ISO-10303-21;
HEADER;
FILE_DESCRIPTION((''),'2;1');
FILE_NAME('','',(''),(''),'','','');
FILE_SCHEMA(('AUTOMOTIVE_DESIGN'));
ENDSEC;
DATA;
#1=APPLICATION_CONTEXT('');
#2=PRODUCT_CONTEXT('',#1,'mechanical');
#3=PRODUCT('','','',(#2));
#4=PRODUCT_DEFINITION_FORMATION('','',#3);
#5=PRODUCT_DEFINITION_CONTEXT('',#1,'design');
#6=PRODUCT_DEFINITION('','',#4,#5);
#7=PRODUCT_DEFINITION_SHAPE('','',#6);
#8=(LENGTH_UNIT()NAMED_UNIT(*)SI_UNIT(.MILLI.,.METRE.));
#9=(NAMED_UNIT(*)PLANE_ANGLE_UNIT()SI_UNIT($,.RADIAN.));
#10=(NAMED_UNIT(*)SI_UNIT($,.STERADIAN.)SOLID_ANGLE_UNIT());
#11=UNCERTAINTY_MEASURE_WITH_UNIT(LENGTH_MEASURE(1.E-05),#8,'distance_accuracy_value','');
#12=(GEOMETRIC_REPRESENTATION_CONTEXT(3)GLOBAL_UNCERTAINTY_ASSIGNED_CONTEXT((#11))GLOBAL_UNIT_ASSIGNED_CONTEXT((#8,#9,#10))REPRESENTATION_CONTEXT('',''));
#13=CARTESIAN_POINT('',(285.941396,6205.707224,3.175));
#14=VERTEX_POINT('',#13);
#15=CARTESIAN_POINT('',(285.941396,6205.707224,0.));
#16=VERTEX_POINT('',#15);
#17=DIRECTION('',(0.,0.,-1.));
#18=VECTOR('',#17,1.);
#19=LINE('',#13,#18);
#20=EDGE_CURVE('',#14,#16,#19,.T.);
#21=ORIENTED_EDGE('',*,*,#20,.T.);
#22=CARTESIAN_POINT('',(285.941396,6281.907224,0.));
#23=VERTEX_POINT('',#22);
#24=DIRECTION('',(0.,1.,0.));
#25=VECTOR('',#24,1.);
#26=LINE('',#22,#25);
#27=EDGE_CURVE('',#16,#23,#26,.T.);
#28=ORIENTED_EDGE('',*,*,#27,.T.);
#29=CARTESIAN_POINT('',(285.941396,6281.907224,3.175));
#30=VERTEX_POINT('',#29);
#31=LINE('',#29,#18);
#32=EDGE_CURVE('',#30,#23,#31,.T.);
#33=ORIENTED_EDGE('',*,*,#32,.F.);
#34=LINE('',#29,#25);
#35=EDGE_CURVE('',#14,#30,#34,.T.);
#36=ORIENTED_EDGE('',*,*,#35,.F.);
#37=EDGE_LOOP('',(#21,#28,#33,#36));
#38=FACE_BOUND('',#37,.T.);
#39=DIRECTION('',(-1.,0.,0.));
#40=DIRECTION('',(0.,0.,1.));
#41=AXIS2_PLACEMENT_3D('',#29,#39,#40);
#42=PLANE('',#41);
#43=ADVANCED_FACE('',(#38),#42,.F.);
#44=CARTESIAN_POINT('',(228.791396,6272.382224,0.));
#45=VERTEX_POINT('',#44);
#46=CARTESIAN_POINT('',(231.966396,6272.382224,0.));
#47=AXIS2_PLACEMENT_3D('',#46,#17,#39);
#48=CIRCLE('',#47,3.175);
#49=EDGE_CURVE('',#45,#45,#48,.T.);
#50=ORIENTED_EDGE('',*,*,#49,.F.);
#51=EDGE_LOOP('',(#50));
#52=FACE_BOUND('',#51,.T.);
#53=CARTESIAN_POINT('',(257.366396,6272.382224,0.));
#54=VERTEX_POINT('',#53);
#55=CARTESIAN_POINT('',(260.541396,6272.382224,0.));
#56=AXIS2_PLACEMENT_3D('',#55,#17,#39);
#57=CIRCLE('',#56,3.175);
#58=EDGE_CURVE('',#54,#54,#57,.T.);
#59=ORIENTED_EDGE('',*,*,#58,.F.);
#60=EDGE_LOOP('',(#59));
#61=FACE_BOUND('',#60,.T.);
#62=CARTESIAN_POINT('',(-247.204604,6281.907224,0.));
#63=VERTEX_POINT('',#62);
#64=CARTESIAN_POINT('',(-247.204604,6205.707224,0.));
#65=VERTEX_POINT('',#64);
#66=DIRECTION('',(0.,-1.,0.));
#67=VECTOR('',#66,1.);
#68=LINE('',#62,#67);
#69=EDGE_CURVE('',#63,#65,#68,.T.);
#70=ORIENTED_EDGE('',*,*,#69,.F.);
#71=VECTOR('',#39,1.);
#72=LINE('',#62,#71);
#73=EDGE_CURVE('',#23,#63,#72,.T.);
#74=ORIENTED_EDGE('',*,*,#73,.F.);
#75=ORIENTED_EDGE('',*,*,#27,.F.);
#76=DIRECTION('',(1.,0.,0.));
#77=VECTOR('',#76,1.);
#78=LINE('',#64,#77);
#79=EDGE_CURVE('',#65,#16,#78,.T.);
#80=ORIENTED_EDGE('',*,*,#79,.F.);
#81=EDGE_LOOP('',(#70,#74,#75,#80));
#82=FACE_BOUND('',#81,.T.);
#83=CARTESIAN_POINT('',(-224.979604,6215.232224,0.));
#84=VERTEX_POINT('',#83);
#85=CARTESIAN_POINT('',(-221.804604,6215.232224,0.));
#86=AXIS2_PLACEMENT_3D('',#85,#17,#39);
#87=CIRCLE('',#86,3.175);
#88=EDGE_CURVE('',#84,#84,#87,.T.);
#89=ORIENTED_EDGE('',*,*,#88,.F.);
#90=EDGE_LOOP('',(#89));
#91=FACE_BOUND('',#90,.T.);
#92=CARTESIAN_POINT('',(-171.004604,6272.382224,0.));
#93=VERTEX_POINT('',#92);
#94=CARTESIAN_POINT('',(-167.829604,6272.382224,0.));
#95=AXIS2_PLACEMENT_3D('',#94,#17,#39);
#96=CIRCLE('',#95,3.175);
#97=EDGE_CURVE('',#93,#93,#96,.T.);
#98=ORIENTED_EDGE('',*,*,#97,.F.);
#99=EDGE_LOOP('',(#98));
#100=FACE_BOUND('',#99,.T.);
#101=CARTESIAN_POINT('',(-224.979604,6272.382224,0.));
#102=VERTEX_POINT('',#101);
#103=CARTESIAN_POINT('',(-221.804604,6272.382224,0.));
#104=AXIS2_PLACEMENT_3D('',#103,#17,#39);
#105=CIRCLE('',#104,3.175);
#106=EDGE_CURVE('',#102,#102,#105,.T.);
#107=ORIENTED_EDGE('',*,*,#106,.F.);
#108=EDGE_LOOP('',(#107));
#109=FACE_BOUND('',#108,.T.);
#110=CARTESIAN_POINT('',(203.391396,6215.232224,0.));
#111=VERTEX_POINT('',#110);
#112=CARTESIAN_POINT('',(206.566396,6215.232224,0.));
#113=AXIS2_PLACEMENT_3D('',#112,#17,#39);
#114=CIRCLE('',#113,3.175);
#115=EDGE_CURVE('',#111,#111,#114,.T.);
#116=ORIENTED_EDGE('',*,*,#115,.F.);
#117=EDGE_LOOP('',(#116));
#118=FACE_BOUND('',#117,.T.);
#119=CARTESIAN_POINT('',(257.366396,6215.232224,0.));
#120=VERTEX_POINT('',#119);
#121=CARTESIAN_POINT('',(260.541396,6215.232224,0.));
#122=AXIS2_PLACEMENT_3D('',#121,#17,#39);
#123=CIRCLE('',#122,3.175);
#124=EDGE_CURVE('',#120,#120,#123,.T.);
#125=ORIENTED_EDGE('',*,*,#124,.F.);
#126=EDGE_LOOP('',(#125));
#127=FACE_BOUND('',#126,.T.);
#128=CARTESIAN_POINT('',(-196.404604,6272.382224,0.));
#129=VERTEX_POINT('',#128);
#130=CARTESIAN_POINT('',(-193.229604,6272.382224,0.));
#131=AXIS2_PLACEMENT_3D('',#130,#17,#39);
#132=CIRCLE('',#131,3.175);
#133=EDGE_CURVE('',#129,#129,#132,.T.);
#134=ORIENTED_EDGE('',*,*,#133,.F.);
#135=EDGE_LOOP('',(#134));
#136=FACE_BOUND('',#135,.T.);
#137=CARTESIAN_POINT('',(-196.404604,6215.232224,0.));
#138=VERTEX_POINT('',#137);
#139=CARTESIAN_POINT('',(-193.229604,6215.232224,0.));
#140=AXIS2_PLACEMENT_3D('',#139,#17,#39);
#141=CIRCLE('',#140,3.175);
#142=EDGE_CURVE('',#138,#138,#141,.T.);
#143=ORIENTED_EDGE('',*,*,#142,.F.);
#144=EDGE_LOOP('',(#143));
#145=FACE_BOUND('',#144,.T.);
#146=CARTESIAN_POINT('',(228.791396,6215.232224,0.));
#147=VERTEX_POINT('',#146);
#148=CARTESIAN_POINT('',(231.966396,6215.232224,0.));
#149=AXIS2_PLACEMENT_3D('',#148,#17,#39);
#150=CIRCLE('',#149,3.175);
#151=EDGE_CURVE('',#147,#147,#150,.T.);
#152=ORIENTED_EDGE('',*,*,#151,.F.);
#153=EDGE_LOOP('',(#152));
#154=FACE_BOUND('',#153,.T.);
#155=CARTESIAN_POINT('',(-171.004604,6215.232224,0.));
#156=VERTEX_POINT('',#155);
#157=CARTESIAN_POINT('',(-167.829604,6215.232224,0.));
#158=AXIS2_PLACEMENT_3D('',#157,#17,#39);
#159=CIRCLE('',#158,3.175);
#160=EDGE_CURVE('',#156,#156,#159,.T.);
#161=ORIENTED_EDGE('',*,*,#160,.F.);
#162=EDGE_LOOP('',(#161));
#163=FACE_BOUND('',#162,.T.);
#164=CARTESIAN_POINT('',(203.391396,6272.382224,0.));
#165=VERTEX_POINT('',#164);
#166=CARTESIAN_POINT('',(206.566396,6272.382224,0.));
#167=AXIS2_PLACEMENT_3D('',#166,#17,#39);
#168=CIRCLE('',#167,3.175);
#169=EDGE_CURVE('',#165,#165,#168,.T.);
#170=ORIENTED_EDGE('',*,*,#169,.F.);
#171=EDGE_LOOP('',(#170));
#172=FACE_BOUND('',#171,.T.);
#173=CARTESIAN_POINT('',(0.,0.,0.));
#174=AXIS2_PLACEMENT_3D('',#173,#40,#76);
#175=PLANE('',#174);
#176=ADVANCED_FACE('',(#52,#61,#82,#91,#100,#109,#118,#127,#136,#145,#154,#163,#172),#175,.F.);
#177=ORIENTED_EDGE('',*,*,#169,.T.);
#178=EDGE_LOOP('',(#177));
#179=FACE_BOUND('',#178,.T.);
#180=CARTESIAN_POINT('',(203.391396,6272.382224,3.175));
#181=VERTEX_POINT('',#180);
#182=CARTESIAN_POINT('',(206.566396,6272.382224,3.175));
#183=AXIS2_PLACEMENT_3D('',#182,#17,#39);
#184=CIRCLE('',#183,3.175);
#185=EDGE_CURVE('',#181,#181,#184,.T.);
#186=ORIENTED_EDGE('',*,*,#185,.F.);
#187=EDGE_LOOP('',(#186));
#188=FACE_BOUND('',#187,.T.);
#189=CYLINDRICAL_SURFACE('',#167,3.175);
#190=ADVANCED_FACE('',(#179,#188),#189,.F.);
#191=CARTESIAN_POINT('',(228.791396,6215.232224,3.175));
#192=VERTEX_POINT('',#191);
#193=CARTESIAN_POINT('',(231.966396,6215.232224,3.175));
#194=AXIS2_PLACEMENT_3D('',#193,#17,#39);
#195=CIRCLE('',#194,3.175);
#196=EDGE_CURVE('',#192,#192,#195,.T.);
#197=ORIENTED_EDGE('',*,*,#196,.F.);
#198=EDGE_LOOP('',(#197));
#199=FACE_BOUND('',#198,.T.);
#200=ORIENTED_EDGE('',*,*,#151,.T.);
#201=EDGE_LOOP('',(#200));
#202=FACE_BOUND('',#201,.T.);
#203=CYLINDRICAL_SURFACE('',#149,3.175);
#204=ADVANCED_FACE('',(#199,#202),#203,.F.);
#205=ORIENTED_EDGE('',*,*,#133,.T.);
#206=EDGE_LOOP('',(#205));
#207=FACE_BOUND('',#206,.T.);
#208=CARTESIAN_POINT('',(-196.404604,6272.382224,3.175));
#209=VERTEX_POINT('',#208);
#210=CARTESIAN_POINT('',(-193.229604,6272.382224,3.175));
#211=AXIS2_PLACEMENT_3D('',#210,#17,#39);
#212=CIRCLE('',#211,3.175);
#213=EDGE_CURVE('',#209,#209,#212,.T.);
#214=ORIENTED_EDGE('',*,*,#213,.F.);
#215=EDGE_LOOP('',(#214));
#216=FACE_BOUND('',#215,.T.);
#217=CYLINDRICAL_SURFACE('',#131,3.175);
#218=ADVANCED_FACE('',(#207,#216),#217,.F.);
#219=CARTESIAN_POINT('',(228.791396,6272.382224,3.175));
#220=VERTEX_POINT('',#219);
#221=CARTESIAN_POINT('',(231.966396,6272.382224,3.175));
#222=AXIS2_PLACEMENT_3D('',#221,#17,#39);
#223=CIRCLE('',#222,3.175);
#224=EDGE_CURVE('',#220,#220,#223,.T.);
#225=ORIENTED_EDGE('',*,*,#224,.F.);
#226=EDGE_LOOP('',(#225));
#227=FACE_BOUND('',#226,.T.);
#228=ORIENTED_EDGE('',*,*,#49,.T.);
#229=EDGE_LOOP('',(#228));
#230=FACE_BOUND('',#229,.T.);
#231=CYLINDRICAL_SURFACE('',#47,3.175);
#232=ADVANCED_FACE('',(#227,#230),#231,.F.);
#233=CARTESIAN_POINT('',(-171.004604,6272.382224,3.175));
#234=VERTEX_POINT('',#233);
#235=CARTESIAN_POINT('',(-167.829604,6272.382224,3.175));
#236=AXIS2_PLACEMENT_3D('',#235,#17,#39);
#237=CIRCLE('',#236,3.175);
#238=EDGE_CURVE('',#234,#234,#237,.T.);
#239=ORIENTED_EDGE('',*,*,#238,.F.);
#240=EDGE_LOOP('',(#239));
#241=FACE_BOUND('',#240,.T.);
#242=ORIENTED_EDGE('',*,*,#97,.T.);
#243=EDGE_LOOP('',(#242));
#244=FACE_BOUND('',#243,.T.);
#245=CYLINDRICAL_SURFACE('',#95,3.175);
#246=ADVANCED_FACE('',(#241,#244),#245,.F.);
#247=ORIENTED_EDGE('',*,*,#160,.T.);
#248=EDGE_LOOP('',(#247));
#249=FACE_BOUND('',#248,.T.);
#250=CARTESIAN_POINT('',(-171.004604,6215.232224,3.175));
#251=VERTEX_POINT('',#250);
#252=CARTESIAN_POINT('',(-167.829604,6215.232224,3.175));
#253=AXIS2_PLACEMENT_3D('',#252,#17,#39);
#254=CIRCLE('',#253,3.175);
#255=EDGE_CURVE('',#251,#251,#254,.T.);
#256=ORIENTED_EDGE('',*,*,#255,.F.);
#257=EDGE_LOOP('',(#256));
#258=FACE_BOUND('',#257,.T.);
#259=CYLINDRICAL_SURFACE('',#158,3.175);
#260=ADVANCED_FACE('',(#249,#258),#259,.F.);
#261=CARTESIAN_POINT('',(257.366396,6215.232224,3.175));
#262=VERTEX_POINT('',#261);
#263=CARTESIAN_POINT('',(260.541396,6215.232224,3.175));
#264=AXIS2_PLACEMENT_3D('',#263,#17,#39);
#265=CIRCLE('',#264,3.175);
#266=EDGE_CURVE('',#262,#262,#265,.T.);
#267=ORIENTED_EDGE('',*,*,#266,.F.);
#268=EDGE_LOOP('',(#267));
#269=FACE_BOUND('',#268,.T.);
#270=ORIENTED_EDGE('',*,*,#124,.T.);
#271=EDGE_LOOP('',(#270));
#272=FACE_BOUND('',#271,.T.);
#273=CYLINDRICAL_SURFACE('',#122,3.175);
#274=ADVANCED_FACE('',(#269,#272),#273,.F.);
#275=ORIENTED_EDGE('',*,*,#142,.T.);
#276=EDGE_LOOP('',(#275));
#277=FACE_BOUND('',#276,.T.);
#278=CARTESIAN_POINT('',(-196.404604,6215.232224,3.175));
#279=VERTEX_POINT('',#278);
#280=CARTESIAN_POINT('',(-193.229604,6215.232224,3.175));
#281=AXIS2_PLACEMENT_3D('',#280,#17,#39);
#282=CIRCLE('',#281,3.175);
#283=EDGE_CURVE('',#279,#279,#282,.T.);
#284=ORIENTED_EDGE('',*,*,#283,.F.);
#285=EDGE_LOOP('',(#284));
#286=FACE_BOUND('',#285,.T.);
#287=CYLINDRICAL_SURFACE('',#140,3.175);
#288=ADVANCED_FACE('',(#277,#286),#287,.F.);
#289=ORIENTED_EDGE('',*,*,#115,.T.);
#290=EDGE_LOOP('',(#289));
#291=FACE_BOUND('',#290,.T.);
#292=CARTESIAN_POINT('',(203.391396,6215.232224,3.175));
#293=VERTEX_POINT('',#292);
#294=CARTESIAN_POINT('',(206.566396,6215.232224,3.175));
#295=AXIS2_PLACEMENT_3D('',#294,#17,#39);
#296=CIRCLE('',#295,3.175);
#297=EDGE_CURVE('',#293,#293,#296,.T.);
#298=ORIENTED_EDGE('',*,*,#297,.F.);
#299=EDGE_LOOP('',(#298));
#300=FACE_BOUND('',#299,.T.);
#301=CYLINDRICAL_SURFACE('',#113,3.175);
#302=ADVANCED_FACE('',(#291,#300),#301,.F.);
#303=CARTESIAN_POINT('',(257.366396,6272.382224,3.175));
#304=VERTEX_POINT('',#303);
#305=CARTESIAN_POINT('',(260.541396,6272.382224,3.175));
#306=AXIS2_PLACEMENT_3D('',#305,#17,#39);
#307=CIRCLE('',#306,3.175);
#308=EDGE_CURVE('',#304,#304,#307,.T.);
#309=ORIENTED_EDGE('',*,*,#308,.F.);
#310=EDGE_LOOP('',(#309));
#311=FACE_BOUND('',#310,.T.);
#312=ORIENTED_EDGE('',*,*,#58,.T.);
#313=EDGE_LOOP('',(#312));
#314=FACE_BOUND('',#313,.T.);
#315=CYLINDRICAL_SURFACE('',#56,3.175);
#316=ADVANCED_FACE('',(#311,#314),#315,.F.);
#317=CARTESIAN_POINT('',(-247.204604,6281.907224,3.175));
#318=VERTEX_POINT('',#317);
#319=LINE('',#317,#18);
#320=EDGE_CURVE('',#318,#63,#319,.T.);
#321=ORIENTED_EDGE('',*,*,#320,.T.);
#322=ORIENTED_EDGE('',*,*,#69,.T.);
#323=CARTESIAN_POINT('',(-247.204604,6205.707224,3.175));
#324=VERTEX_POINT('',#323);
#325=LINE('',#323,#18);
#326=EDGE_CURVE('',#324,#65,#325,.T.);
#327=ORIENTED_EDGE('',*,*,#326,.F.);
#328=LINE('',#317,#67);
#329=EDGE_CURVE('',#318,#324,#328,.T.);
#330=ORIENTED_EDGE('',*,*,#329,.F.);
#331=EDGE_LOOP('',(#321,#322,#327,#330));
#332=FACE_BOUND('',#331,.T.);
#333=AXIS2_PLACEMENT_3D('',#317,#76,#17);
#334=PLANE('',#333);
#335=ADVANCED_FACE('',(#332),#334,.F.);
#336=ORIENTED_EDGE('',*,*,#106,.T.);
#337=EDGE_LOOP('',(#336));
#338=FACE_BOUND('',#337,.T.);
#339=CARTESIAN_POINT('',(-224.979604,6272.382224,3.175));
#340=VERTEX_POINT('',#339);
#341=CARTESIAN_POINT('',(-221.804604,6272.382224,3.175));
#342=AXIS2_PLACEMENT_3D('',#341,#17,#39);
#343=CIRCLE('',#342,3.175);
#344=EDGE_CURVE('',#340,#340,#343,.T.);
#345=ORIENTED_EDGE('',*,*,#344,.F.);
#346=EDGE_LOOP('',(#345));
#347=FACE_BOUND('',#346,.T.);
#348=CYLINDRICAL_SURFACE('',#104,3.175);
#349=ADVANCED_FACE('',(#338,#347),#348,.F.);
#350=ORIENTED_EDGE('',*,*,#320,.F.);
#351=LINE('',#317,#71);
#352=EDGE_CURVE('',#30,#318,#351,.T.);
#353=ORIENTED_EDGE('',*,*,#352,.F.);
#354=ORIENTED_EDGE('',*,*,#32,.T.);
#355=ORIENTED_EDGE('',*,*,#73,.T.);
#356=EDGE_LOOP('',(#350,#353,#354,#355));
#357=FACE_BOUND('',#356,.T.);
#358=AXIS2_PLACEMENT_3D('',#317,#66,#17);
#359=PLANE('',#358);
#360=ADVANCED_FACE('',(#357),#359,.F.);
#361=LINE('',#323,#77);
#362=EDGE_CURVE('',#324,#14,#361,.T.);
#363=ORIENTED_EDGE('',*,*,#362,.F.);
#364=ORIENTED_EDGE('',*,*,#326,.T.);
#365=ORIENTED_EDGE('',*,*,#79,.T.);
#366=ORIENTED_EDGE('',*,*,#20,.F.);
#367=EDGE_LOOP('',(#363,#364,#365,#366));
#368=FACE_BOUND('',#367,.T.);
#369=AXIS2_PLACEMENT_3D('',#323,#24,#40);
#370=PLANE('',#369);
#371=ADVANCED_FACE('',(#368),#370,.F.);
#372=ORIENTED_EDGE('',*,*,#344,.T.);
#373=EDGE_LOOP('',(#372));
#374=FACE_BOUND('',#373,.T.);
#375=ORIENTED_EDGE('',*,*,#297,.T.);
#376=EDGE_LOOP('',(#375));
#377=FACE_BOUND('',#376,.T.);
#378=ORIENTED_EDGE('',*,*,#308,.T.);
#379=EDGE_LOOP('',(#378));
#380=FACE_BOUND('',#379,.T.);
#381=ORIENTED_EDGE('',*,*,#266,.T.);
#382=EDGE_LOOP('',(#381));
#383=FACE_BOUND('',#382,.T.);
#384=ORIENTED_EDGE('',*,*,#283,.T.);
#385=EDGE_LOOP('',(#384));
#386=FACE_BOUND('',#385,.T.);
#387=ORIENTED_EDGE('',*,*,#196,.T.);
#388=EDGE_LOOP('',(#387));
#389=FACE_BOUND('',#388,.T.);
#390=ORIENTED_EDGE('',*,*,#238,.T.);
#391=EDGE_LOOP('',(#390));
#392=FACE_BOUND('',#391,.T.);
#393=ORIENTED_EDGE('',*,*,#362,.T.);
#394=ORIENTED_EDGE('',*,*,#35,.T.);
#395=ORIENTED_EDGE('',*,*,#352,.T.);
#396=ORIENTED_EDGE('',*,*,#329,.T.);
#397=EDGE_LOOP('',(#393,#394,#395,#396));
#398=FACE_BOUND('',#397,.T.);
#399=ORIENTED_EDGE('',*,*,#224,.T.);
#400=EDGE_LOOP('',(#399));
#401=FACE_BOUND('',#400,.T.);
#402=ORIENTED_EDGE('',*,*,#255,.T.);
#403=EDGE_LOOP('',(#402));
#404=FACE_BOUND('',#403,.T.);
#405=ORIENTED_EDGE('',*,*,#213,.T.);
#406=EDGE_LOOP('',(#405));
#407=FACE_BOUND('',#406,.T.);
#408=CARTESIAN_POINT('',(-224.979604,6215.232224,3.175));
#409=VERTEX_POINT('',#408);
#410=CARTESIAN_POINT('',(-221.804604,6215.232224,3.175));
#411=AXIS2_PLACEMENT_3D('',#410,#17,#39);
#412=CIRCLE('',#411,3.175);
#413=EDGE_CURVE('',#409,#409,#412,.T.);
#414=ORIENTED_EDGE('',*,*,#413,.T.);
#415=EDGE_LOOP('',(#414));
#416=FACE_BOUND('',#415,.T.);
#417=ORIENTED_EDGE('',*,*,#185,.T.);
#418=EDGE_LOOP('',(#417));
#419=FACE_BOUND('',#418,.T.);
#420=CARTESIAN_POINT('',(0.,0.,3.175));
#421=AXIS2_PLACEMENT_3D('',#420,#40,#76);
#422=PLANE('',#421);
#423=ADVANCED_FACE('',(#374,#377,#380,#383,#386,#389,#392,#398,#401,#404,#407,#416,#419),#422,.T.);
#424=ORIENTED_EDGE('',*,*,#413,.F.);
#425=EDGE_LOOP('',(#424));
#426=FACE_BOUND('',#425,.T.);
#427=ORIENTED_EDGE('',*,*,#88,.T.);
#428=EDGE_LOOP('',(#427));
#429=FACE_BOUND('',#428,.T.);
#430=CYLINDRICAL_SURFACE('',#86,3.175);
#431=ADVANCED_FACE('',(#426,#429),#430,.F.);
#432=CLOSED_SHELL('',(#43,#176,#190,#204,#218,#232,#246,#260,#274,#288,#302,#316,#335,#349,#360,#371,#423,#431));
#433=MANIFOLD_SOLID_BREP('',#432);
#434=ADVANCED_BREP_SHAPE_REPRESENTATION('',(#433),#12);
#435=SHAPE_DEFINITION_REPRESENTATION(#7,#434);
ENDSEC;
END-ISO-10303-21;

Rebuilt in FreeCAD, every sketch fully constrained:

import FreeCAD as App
import Part
import Sketcher

V = App.Vector
Q = App.Units.Quantity


def add_polygon(sketch, points):
    """Adds a closed chain of lines whose ends are joined by coincident constraints."""
    first, n = sketch.GeometryCount, len(points)
    for a, b in zip(points, points[1:] + points[:1]):
        sketch.addGeometry(Part.LineSegment(App.Vector(*a, 0), App.Vector(*b, 0)), False)
    for i in range(n):
        sketch.addConstraint(Sketcher.Constraint("Coincident", first + i, 2, first + (i + 1) % n, 1))

doc = App.newDocument("Part")
body = doc.addObject("PartDesign::Body", "Body")

# Sketch on XY plane
sketch1 = body.newObject("Sketcher::SketchObject", "Sketch")
sketch1.AttachmentSupport = (doc.getObject("XY_Plane"), [""])
sketch1.MapMode = "FlatFace"
add_polygon(sketch1, [(-247, 6282), (-247, 6206), (286, 6206), (286, 6282)])  # lines 0-3
sketch1.addConstraint([
    Sketcher.Constraint("Vertical", 0),
    Sketcher.Constraint("Horizontal", 1),
    Sketcher.Constraint("Vertical", 2),
    Sketcher.Constraint("Horizontal", 3),
    Sketcher.Constraint("DistanceY", 0, 2, 0, 1, Q("3 in")),
    Sketcher.Constraint("DistanceX", 1, 1, 1, 2, Q("20.99 in")),
    Sketcher.Constraint("DistanceX", 0, 2, -1, 1, Q("247.204604 mm")),
    Sketcher.Constraint("DistanceY", -1, 1, 0, 2, Q("6205.707224 mm")),
])
pad1 = body.newObject("PartDesign::Pad", "Pad")
pad1.Profile = sketch1
pad1.Length = Q("0.125 in")

# Sketch on XY plane
sketch2 = body.newObject("Sketcher::SketchObject", "Sketch001")
sketch2.AttachmentSupport = (doc.getObject("XY_Plane"), [""])
sketch2.MapMode = "FlatFace"
sketch2.addGeometry([
    Part.Circle(V(232, 6215.2, 0), V(0, 0, 1), 3.2),  # 0
    Part.Circle(V(206.6, 6215.2, 0), V(0, 0, 1), 3.2),  # 1
    Part.Circle(V(206.6, 6272.4, 0), V(0, 0, 1), 3.2),  # 2
    Part.Circle(V(232, 6272.4, 0), V(0, 0, 1), 3.2),  # 3
    Part.Circle(V(260.5, 6215.2, 0), V(0, 0, 1), 3.2),  # 4
    Part.Circle(V(260.5, 6272.4, 0), V(0, 0, 1), 3.2),  # 5
    Part.Circle(V(-221.8, 6272.4, 0), V(0, 0, 1), 3.2),  # 6
    Part.Circle(V(-221.8, 6215.2, 0), V(0, 0, 1), 3.2),  # 7
    Part.Circle(V(-193.2, 6272.4, 0), V(0, 0, 1), 3.2),  # 8
    Part.Circle(V(-167.8, 6272.4, 0), V(0, 0, 1), 3.2),  # 9
    Part.Circle(V(-167.8, 6215.2, 0), V(0, 0, 1), 3.2),  # 10
    Part.Circle(V(-193.2, 6215.2, 0), V(0, 0, 1), 3.2),  # 11
], False)
sketch2.addConstraint([
    Sketcher.Constraint("Equal", 0, 1),
    Sketcher.Constraint("Equal", 1, 2),
    Sketcher.Constraint("Equal", 2, 3),
    Sketcher.Constraint("Equal", 3, 4),
    Sketcher.Constraint("Equal", 4, 5),
    Sketcher.Constraint("Equal", 5, 6),
    Sketcher.Constraint("Equal", 6, 7),
    Sketcher.Constraint("Equal", 7, 8),
    Sketcher.Constraint("Equal", 8, 9),
    Sketcher.Constraint("Equal", 9, 10),
    Sketcher.Constraint("Equal", 10, 11),
    Sketcher.Constraint("Horizontal", 0, 3, 1, 3),
    Sketcher.Constraint("Horizontal", 2, 3, 3, 3),
    Sketcher.Constraint("Horizontal", 1, 3, 4, 3),
    Sketcher.Constraint("Horizontal", 3, 3, 5, 3),
    Sketcher.Constraint("Horizontal", 5, 3, 6, 3),
    Sketcher.Constraint("Horizontal", 4, 3, 7, 3),
    Sketcher.Constraint("Horizontal", 6, 3, 8, 3),
    Sketcher.Constraint("Horizontal", 8, 3, 9, 3),
    Sketcher.Constraint("Horizontal", 7, 3, 10, 3),
    Sketcher.Constraint("Horizontal", 10, 3, 11, 3),
    Sketcher.Constraint("Vertical", 1, 3, 2, 3),
    Sketcher.Constraint("Vertical", 0, 3, 3, 3),
    Sketcher.Constraint("Vertical", 4, 3, 5, 3),
    Sketcher.Constraint("Vertical", 6, 3, 7, 3),
    Sketcher.Constraint("Vertical", 9, 3, 10, 3),
    Sketcher.Constraint("Vertical", 8, 3, 11, 3),
    Sketcher.Constraint("Diameter", 0, Q("0.25 in")),
    Sketcher.Constraint("DistanceX", 1, 3, 0, 3, Q("1 in")),
    Sketcher.Constraint("DistanceX", 8, 3, 9, 3, Q("1 in")),
    Sketcher.Constraint("DistanceY", 1, 3, 2, 3, Q("2.25 in")),
    Sketcher.Constraint("DistanceX", 6, 3, 5, 3, Q("18.99 in")),
    Sketcher.Constraint("DistanceX", 8, 3, 2, 3, Q("15.74 in")),
    Sketcher.Constraint("DistanceX", 0, 3, 4, 3, Q("1.125 in")),
    Sketcher.Constraint("DistanceX", -1, 1, 0, 3, Q("231.966396 mm")),
    Sketcher.Constraint("DistanceY", -1, 1, 0, 3, Q("6215.232224 mm")),
])
doc.recompute()
hole = body.newObject("PartDesign::Hole", "Hole")
hole.Profile = sketch2
hole.ThreadType = "None"
hole.Diameter = Q("0.25 in")
hole.DepthType = "ThroughAll"
hole.Reversed = True

doc.recompute()
